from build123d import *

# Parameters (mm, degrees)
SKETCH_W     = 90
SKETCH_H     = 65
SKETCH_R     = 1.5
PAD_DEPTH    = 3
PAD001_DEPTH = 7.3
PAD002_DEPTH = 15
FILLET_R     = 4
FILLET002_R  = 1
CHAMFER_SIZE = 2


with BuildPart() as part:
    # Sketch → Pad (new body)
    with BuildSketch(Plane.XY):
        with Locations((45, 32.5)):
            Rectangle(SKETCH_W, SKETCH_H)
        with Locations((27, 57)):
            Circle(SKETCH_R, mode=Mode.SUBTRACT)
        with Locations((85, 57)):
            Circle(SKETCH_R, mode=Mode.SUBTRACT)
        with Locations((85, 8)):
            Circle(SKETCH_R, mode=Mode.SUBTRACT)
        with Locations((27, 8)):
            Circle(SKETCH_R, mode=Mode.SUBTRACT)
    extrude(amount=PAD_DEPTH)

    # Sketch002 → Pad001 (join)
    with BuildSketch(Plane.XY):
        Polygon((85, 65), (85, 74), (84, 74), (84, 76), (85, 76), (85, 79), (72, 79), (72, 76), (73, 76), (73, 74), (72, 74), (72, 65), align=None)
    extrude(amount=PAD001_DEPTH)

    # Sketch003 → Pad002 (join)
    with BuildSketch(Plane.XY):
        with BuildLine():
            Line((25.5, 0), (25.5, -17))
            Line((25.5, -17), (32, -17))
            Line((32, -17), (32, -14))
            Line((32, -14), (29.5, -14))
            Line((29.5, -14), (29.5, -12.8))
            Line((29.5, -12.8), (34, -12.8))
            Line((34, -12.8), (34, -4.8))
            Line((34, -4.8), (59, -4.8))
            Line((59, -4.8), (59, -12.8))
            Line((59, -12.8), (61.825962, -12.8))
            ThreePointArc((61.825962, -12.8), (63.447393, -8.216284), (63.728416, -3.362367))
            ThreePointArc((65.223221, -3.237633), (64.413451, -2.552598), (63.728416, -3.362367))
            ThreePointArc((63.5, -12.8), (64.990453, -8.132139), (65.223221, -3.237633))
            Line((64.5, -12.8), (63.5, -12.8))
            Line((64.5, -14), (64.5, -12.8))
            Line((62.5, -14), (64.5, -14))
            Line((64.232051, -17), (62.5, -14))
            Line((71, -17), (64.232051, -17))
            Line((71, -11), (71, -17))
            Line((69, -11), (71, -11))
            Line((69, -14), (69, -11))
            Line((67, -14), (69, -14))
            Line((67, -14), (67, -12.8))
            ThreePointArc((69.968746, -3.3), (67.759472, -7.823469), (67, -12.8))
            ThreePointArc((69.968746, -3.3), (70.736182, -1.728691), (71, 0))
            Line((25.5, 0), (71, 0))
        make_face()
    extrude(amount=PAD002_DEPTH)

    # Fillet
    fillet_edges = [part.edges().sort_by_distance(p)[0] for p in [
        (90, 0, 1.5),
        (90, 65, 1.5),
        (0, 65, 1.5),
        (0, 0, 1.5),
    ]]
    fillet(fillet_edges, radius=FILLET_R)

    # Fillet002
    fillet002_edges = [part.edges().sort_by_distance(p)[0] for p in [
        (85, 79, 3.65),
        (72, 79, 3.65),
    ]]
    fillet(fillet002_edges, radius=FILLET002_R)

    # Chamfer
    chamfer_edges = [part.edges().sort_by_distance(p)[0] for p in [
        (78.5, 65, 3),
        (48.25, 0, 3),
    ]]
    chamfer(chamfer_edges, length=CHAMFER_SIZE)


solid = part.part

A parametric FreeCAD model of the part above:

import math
import FreeCAD as App
import Part
import Sketcher
Q = App.Units.Quantity


def edges_at(feature, points):
    """Names of the edges that pass closest to the given points."""
    edges = feature.Shape.Edges
    near = lambda p: min(range(len(edges)), key=lambda i: edges[i].distToShape(Part.Vertex(*p))[0])
    return sorted({f"Edge{near(p) + 1}" for p in points})

doc = App.newDocument("Part")
body = doc.addObject("PartDesign::Body", "Body")

# Sketch on XY plane
sketch1 = body.newObject("Sketcher::SketchObject", "Sketch")
sketch1.AttachmentSupport = (doc.getObject("XY_Plane"), [""])
sketch1.MapMode = "FlatFace"
sketch1.addGeometry([
    Part.LineSegment(App.Vector(0, 65, 0), App.Vector(0, 0, 0)),  # 0
    Part.LineSegment(App.Vector(0, 0, 0), App.Vector(90, 0, 0)),  # 1
    Part.LineSegment(App.Vector(90, 0, 0), App.Vector(90, 65, 0)),  # 2
    Part.LineSegment(App.Vector(90, 65, 0), App.Vector(0, 65, 0)),  # 3
    Part.Circle(App.Vector(27, 8, 0), App.Vector(0, 0, 1), 1.5),  # 4
    Part.Circle(App.Vector(85, 8, 0), App.Vector(0, 0, 1), 1.5),  # 5
    Part.Circle(App.Vector(27, 57, 0), App.Vector(0, 0, 1), 1.5),  # 6
    Part.Circle(App.Vector(85, 57, 0), App.Vector(0, 0, 1), 1.5),  # 7
], False)
sketch1.addConstraint([
    Sketcher.Constraint("Coincident", 0, 2, 1, 1),
    Sketcher.Constraint("Coincident", 1, 2, 2, 1),
    Sketcher.Constraint("Coincident", 2, 2, 3, 1),
    Sketcher.Constraint("Coincident", 3, 2, 0, 1),
    Sketcher.Constraint("Vertical", 0),
    Sketcher.Constraint("Horizontal", 1),
    Sketcher.Constraint("Vertical", 2),
    Sketcher.Constraint("Horizontal", 3),
    Sketcher.Constraint("Coincident", 0, 2, -1, 1),
    Sketcher.Constraint("Equal", 4, 5),
    Sketcher.Constraint("Equal", 5, 6),
    Sketcher.Constraint("Equal", 6, 7),
    Sketcher.Constraint("Horizontal", 4, 3, 5, 3),
    Sketcher.Constraint("Horizontal", 6, 3, 7, 3),
    Sketcher.Constraint("Vertical", 4, 3, 6, 3),
    Sketcher.Constraint("Vertical", 5, 3, 7, 3),
    Sketcher.Constraint("Diameter", 4, Q("3 mm")),
    Sketcher.Constraint("DistanceX", 1, 1, 1, 2, Q("90 mm")),
    Sketcher.Constraint("DistanceY", 0, 2, 0, 1, Q("65 mm")),
    Sketcher.Constraint("DistanceX", -1, 1, 4, 3, Q("27 mm")),
    Sketcher.Constraint("DistanceY", -1, 1, 4, 3, Q("8 mm")),
    Sketcher.Constraint("DistanceX", -1, 1, 5, 3, Q("85 mm")),
    Sketcher.Constraint("DistanceY", -1, 1, 6, 3, Q("57 mm")),
])
pad1 = body.newObject("PartDesign::Pad", "Pad")
pad1.Profile = sketch1
pad1.Length = 3

# Sketch on XY plane
sketch2 = body.newObject("Sketcher::SketchObject", "Sketch001")
sketch2.AttachmentSupport = (doc.getObject("XY_Plane"), [""])
sketch2.MapMode = "FlatFace"
sketch2.addGeometry([
    Part.LineSegment(App.Vector(85, 65, 0), App.Vector(85, 74, 0)),  # 0
    Part.LineSegment(App.Vector(85, 74, 0), App.Vector(84, 74, 0)),  # 1
    Part.LineSegment(App.Vector(84, 74, 0), App.Vector(84, 76, 0)),  # 2
    Part.LineSegment(App.Vector(84, 76, 0), App.Vector(85, 76, 0)),  # 3
    Part.LineSegment(App.Vector(85, 76, 0), App.Vector(85, 79, 0)),  # 4
    Part.LineSegment(App.Vector(85, 79, 0), App.Vector(72, 79, 0)),  # 5
    Part.LineSegment(App.Vector(72, 79, 0), App.Vector(72, 76, 0)),  # 6
    Part.LineSegment(App.Vector(72, 76, 0), App.Vector(73, 76, 0)),  # 7
    Part.LineSegment(App.Vector(73, 76, 0), App.Vector(73, 74, 0)),  # 8
    Part.LineSegment(App.Vector(73, 74, 0), App.Vector(72, 74, 0)),  # 9
    Part.LineSegment(App.Vector(72, 74, 0), App.Vector(72, 65, 0)),  # 10
    Part.LineSegment(App.Vector(72, 65, 0), App.Vector(85, 65, 0)),  # 11
], False)
sketch2.addConstraint([
    Sketcher.Constraint("Coincident", 0, 2, 1, 1),
    Sketcher.Constraint("Coincident", 1, 2, 2, 1),
    Sketcher.Constraint("Coincident", 2, 2, 3, 1),
    Sketcher.Constraint("Coincident", 3, 2, 4, 1),
    Sketcher.Constraint("Coincident", 4, 2, 5, 1),
    Sketcher.Constraint("Coincident", 5, 2, 6, 1),
    Sketcher.Constraint("Coincident", 6, 2, 7, 1),
    Sketcher.Constraint("Coincident", 7, 2, 8, 1),
    Sketcher.Constraint("Coincident", 8, 2, 9, 1),
    Sketcher.Constraint("Coincident", 9, 2, 10, 1),
    Sketcher.Constraint("Coincident", 10, 2, 11, 1),
    Sketcher.Constraint("Coincident", 11, 2, 0, 1),
    Sketcher.Constraint("Vertical", 0),
    Sketcher.Constraint("Horizontal", 1),
    Sketcher.Constraint("Vertical", 2),
    Sketcher.Constraint("Horizontal", 3),
    Sketcher.Constraint("Vertical", 4),
    Sketcher.Constraint("Horizontal", 5),
    Sketcher.Constraint("Vertical", 6),
    Sketcher.Constraint("Horizontal", 7),
    Sketcher.Constraint("Vertical", 8),
    Sketcher.Constraint("Horizontal", 9),
    Sketcher.Constraint("Vertical", 10),
    Sketcher.Constraint("Horizontal", 11),
    Sketcher.Constraint("Horizontal", 3, 2, 6, 2),
    Sketcher.Constraint("Horizontal", 1, 2, 8, 2),
    Sketcher.Constraint("Vertical", 0, 2, 3, 2),
    Sketcher.Constraint("Vertical", 6, 2, 9, 2),
    Sketcher.Constraint("Equal", 3, 7),
    Sketcher.Constraint("DistanceX", 1, 2, 1, 1, Q("1 mm")),
    Sketcher.Constraint("DistanceX", 5, 2, 5, 1, Q("13 mm")),
    Sketcher.Constraint("DistanceY", 0, 1, 0, 2, Q("9 mm")),
    Sketcher.Constraint("DistanceY", 2, 1, 2, 2, Q("2 mm")),
    Sketcher.Constraint("DistanceY", 4, 1, 4, 2, Q("3 mm")),
    Sketcher.Constraint("DistanceX", -1, 1, 0, 2, Q("85 mm")),
    Sketcher.Constraint("DistanceY", -1, 1, 0, 2, Q("74 mm")),
])
pad2 = body.newObject("PartDesign::Pad", "Pad001")
pad2.Profile = sketch2
pad2.Length = 7.3

# Sketch on XY plane
sketch3 = body.newObject("Sketcher::SketchObject", "Sketch002")
sketch3.AttachmentSupport = (doc.getObject("XY_Plane"), [""])
sketch3.MapMode = "FlatFace"
sketch3.addGeometry([
    Part.LineSegment(App.Vector(25.5, 0, 0), App.Vector(25.5, -17, 0)),  # 0
    Part.LineSegment(App.Vector(25.5, -17, 0), App.Vector(32, -17, 0)),  # 1
    Part.LineSegment(App.Vector(32, -17, 0), App.Vector(32, -14, 0)),  # 2
    Part.LineSegment(App.Vector(32, -14, 0), App.Vector(29.5, -14, 0)),  # 3
    Part.LineSegment(App.Vector(29.5, -14, 0), App.Vector(29.5, -12.8, 0)),  # 4
    Part.LineSegment(App.Vector(29.5, -12.8, 0), App.Vector(34, -12.8, 0)),  # 5
    Part.LineSegment(App.Vector(34, -12.8, 0), App.Vector(34, -4.8, 0)),  # 6
    Part.LineSegment(App.Vector(34, -4.8, 0), App.Vector(59, -4.8, 0)),  # 7
    Part.LineSegment(App.Vector(59, -4.8, 0), App.Vector(59, -12.8, 0)),  # 8
    Part.LineSegment(App.Vector(59, -12.8, 0), App.Vector(61.8, -12.8, 0)),  # 9
    Part.ArcOfCircle(Part.Circle(App.Vector(46.5, -4.8, 0), App.Vector(0, 0, 1), 17.3), math.radians(-28), math.radians(5)),  # 10
    Part.ArcOfCircle(Part.Circle(App.Vector(64.5, -3.3, 0), App.Vector(0, 0, 1), 0.8), math.radians(5), math.radians(185)),  # 11
    Part.ArcOfCircle(Part.Circle(App.Vector(46.5, -4.8, 0), App.Vector(0, 0, 1), 18.8), math.radians(-25), math.radians(5)),  # 12
    Part.LineSegment(App.Vector(63.5, -12.8, 0), App.Vector(64.5, -12.8, 0)),  # 13
    Part.LineSegment(App.Vector(64.5, -12.8, 0), App.Vector(64.5, -14, 0)),  # 14
    Part.LineSegment(App.Vector(64.5, -14, 0), App.Vector(62.5, -14, 0)),  # 15
    Part.LineSegment(App.Vector(62.5, -14, 0), App.Vector(64.2, -17, 0)),  # 16
    Part.LineSegment(App.Vector(64.2, -17, 0), App.Vector(71, -17, 0)),  # 17
    Part.LineSegment(App.Vector(71, -17, 0), App.Vector(71, -11, 0)),  # 18
    Part.LineSegment(App.Vector(71, -11, 0), App.Vector(69, -11, 0)),  # 19
    Part.LineSegment(App.Vector(69, -11, 0), App.Vector(69, -14, 0)),  # 20
    Part.LineSegment(App.Vector(69, -14, 0), App.Vector(67, -14, 0)),  # 21
    Part.LineSegment(App.Vector(67, -14, 0), App.Vector(67, -12.8, 0)),  # 22
    Part.ArcOfCircle(Part.Circle(App.Vector(83.7, -12.8, 0), App.Vector(0, 0, 1), 16.7), math.radians(145), math.radians(180)),  # 23
    Part.ArcOfCircle(Part.Circle(App.Vector(65.2, 0, 0), App.Vector(0, 0, 1), 5.8), math.radians(-35), math.radians(0)),  # 24
    Part.LineSegment(App.Vector(71, 0, 0), App.Vector(25.5, 0, 0)),  # 25
], False)
sketch3.addConstraint([
    Sketcher.Constraint("Coincident", 0, 2, 1, 1),
    Sketcher.Constraint("Coincident", 1, 2, 2, 1),
    Sketcher.Constraint("Coincident", 2, 2, 3, 1),
    Sketcher.Constraint("Coincident", 3, 2, 4, 1),
    Sketcher.Constraint("Coincident", 4, 2, 5, 1),
    Sketcher.Constraint("Coincident", 5, 2, 6, 1),
    Sketcher.Constraint("Coincident", 6, 2, 7, 1),
    Sketcher.Constraint("Coincident", 7, 2, 8, 1),
    Sketcher.Constraint("Coincident", 8, 2, 9, 1),
    Sketcher.Constraint("Coincident", 9, 2, 10, 1),
    Sketcher.Constraint("Tangent", 10, 2, 11, 2),
    Sketcher.Constraint("Tangent", 11, 1, 12, 2),
    Sketcher.Constraint("Coincident", 12, 1, 13, 1),
    Sketcher.Constraint("Coincident", 13, 2, 14, 1),
    Sketcher.Constraint("Coincident", 14, 2, 15, 1),
    Sketcher.Constraint("Coincident", 15, 2, 16, 1),
    Sketcher.Constraint("Coincident", 16, 2, 17, 1),
    Sketcher.Constraint("Coincident", 17, 2, 18, 1),
    Sketcher.Constraint("Coincident", 18, 2, 19, 1),
    Sketcher.Constraint("Coincident", 19, 2, 20, 1),
    Sketcher.Constraint("Coincident", 20, 2, 21, 1),
    Sketcher.Constraint("Coincident", 21, 2, 22, 1),
    Sketcher.Constraint("Tangent", 22, 2, 23, 2),
    Sketcher.Constraint("Coincident", 23, 1, 24, 1),
    Sketcher.Constraint("Coincident", 24, 2, 25, 1),
    Sketcher.Constraint("Coincident", 25, 2, 0, 1),
    Sketcher.Constraint("Vertical", 0),
    Sketcher.Constraint("Horizontal", 1),
    Sketcher.Constraint("Vertical", 2),
    Sketcher.Constraint("Horizontal", 3),
    Sketcher.Constraint("Vertical", 4),
    Sketcher.Constraint("Horizontal", 5),
    Sketcher.Constraint("Vertical", 6),
    Sketcher.Constraint("Horizontal", 7),
    Sketcher.Constraint("Vertical", 8),
    Sketcher.Constraint("Horizontal", 9),
    Sketcher.Constraint("Horizontal", 13),
    Sketcher.Constraint("Vertical", 14),
    Sketcher.Constraint("Horizontal", 15),
    Sketcher.Constraint("Horizontal", 17),
    Sketcher.Constraint("Vertical", 18),
    Sketcher.Constraint("Horizontal", 19),
    Sketcher.Constraint("Vertical", 20),
    Sketcher.Constraint("Horizontal", 21),
    Sketcher.Constraint("Vertical", 22),
    Sketcher.Constraint("Horizontal", 25),
    Sketcher.Constraint("Coincident", 12, 3, 10, 3),
    Sketcher.Constraint("PointOnObject", 24, 3, -1),
    Sketcher.Constraint("PointOnObject", 24, 2, -1),
    Sketcher.Constraint("Horizontal", 23, 3, 4, 2),
    Sketcher.Constraint("Horizontal", 12, 3, 6, 2),
    Sketcher.Constraint("Horizontal", 5, 2, 8, 2),
    Sketcher.Constraint("Horizontal", 9, 2, 12, 1),
    Sketcher.Constraint("Horizontal", 3, 2, 14, 2),
    Sketcher.Constraint("Horizontal", 1, 2, 16, 2),
    Sketcher.Constraint("Horizontal", 15, 2, 20, 2),
    Sketcher.Constraint("Horizontal", 11, 3, 23, 1),
    Sketcher.Constraint("Vertical", 18, 2, 24, 2),
    Sketcher.Constraint("Equal", 15, 19),
    Sketcher.Constraint("Equal", 19, 21),
    Sketcher.Constraint("Equal", 2, 20),
    Sketcher.Constraint("DistanceX", 7, 1, 7, 2, Q("25 mm")),
    Sketcher.Constraint("DistanceX", 13, 1, 13, 2, Q("1 mm")),
    Sketcher.Constraint("DistanceX", 15, 2, 15, 1, Q("2 mm")),
    Sketcher.Constraint("DistanceY", 0, 2, 0, 1, Q("17 mm")),
    Sketcher.Constraint("DistanceY", 2, 1, 2, 2, Q("3 mm")),
    Sketcher.Constraint("DistanceY", 6, 1, 6, 2, Q("8 mm")),
    Sketcher.Constraint("Angle", 16, Q("-59.999997 deg")),
    Sketcher.Constraint("Radius", 11, Q("0.75 mm")),
    Sketcher.Constraint("DistanceX", 1, 1, 1, 2, Q("6.5 mm")),
    Sketcher.Constraint("DistanceX", 3, 2, 3, 1, Q("2.5 mm")),
    Sketcher.Constraint("DistanceX", 5, 1, 5, 2, Q("4.5 mm")),
    Sketcher.Constraint("DistanceX", 25, 2, 25, 1, Q("45.5 mm")),
    Sketcher.Constraint("DistanceY", 4, 1, 4, 2, Q("1.2 mm")),
    Sketcher.Constraint("DistanceX", -1, 1, 1, 2, Q("32 mm")),
    Sketcher.Constraint("DistanceY", 11, 3, -1, 1, Q("3.3 mm")),
    Sketcher.Constraint("DistanceX", -1, 1, 12, 1, Q("63.5 mm")),
    Sketcher.Constraint("Radius", 12, Q("18.788291 mm")),
    Sketcher.Constraint("Radius", 23, Q("16.684394 mm")),
])
pad3 = body.newObject("PartDesign::Pad", "Pad002")
pad3.Profile = sketch3
pad3.Length = 15
doc.recompute()

fillet = body.newObject("PartDesign::Fillet", "Fillet")
fillet.Base = (pad3, edges_at(pad3, [
    (90, 0, 1.5),
    (90, 65, 1.5),
    (0, 65, 1.5),
    (0, 0, 1.5),
]))
fillet.Radius = 4
doc.recompute()

fillet2 = body.newObject("PartDesign::Fillet", "Fillet001")
fillet2.Base = (fillet, edges_at(fillet, [(85, 79, 3.65), (72, 79, 3.65)]))
fillet2.Radius = 1
doc.recompute()

chamfer = body.newObject("PartDesign::Chamfer", "Chamfer")
chamfer.Base = (fillet2, edges_at(fillet2, [(78.5, 65, 3), (48.25, 0, 3)]))
chamfer.Size = 2

doc.recompute()
